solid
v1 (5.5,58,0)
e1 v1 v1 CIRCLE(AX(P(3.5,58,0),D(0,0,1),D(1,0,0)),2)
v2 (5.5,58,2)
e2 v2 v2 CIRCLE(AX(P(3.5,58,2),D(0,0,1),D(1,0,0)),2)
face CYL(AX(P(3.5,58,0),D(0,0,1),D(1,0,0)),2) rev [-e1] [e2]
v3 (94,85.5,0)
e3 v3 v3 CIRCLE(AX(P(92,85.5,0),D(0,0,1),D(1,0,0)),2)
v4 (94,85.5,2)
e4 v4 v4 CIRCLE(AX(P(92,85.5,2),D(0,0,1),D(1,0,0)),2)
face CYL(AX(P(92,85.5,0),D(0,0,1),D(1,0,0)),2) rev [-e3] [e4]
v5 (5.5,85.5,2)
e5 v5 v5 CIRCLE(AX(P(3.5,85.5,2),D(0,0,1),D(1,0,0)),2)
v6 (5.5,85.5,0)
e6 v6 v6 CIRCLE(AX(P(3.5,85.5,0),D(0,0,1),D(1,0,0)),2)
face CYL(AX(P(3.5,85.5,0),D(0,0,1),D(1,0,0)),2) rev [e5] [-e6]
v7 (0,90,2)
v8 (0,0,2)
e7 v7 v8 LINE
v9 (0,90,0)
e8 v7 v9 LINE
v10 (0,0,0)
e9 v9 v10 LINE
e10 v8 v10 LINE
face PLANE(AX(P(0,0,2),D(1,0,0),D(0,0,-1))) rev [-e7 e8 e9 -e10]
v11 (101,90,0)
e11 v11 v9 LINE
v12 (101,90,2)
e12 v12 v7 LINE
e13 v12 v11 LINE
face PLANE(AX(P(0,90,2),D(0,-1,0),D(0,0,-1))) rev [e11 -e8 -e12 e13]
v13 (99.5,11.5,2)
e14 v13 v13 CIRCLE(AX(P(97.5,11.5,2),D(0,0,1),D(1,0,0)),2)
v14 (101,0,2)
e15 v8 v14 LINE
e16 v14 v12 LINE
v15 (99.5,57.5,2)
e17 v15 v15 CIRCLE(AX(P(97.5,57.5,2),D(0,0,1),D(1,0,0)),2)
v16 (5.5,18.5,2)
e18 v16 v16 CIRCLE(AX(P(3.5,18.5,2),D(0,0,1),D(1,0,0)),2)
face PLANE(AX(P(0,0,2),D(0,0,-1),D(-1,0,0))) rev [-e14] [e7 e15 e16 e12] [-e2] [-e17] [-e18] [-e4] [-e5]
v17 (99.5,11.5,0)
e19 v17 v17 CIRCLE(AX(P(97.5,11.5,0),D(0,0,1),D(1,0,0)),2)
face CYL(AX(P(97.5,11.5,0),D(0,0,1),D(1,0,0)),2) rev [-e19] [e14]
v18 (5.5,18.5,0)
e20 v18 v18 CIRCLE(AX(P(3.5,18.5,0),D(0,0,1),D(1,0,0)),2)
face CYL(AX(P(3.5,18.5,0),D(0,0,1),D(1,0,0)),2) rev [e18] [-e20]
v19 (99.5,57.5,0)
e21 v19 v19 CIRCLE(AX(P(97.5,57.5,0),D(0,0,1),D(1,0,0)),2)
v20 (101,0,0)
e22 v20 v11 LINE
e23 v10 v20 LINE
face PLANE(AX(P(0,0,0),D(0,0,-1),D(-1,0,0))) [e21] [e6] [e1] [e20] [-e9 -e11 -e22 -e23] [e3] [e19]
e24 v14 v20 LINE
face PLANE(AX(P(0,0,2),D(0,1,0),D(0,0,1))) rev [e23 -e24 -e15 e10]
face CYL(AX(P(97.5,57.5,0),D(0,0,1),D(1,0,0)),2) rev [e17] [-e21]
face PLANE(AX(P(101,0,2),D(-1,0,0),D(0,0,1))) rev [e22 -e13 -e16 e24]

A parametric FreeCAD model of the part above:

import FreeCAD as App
import Part
import Sketcher
from FreeCAD import Vector
Q = App.Units.Quantity


def add_polygon(sketch, points):
    """Adds a closed chain of lines whose ends are joined by coincident constraints."""
    first, n = sketch.GeometryCount, len(points)
    for a, b in zip(points, points[1:] + points[:1]):
        sketch.addGeometry(Part.LineSegment(App.Vector(*a, 0), App.Vector(*b, 0)), False)
    for i in range(n):
        sketch.addConstraint(Sketcher.Constraint("Coincident", first + i, 2, first + (i + 1) % n, 1))

doc = App.newDocument("Part")
body = doc.addObject("PartDesign::Body", "Body")

sketch1 = body.newObject("Sketcher::SketchObject", "Sketch")
sketch1.AttachmentSupport = (doc.getObject("XY_Plane"), [""])
sketch1.MapMode = "FlatFace"
add_polygon(sketch1, [(0, 90), (0, 0), (101, 0), (101, 90)])
sketch1.addConstraint([
    Sketcher.Constraint("Vertical", 0),
    Sketcher.Constraint("Horizontal", 1),
    Sketcher.Constraint("Vertical", 2),
    Sketcher.Constraint("Horizontal", 3),
    Sketcher.Constraint("Coincident", 0, 2, -1, 1),
    Sketcher.Constraint("DistanceX", 1, 1, 1, 2, Q("101 mm")),
    Sketcher.Constraint("DistanceY", 0, 2, 0, 1, Q("90 mm")),
])
pad1 = body.newObject("PartDesign::Pad", "Pad")
pad1.Profile = sketch1
pad1.Length = 2

sketch2 = body.newObject("Sketcher::SketchObject", "Sketch001")
sketch2.AttachmentSupport = (doc.getObject("XY_Plane"), [""])
sketch2.MapMode = "FlatFace"
sketch2.AttachmentOffset = App.Placement(Vector(0, 0, 2), App.Rotation())
sketch2.addGeometry([
    Part.Circle(Vector(97.5, 11.5, 0), Vector(0, 0, 1), 2),
    Part.Circle(Vector(97.5, 57.5, 0), Vector(0, 0, 1), 2),
    Part.Circle(Vector(3.5, 18.5, 0), Vector(0, 0, 1), 2),
    Part.Circle(Vector(3.5, 58, 0), Vector(0, 0, 1), 2),
    Part.Circle(Vector(3.5, 85.5, 0), Vector(0, 0, 1), 2),
    Part.Circle(Vector(92, 85.5, 0), Vector(0, 0, 1), 2),
], False)
sketch2.addConstraint([
    Sketcher.Constraint("Equal", 0, 1),
    Sketcher.Constraint("Equal", 1, 2),
    Sketcher.Constraint("Equal", 2, 3),
    Sketcher.Constraint("Equal", 3, 4),
    Sketcher.Constraint("Equal", 4, 5),
    Sketcher.Constraint("Horizontal", 4, 3, 5, 3),
    Sketcher.Constraint("Vertical", 0, 3, 1, 3),
    Sketcher.Constraint("Vertical", 2, 3, 3, 3),
    Sketcher.Constraint("Vertical", 3, 3, 4, 3),
    Sketcher.Constraint("Diameter", 0, Q("4 mm")),
    Sketcher.Constraint("DistanceY", -1, 1, 3, 3, Q("58 mm")),
    Sketcher.Constraint("DistanceX", -1, 1, 5, 3, Q("92 mm")),
    Sketcher.Constraint("DistanceY", 0, 3, 1, 3, Q("46 mm")),
    Sketcher.Constraint("DistanceX", 2, 3, 0, 3, Q("94 mm")),
    Sketcher.Constraint("DistanceY", 0, 3, 2, 3, Q("7 mm")),
    Sketcher.Constraint("DistanceY", 2, 3, 4, 3, Q("67 mm")),
    Sketcher.Constraint("DistanceX", -1, 1, 0, 3, Q("97.5 mm")),
    Sketcher.Constraint("DistanceY", -1, 1, 0, 3, Q("11.5 mm")),
])
pocket1 = body.newObject("PartDesign::Pocket", "Pocket")
pocket1.Profile = sketch2
pocket1.Type = "ThroughAll"

doc.recompute()
